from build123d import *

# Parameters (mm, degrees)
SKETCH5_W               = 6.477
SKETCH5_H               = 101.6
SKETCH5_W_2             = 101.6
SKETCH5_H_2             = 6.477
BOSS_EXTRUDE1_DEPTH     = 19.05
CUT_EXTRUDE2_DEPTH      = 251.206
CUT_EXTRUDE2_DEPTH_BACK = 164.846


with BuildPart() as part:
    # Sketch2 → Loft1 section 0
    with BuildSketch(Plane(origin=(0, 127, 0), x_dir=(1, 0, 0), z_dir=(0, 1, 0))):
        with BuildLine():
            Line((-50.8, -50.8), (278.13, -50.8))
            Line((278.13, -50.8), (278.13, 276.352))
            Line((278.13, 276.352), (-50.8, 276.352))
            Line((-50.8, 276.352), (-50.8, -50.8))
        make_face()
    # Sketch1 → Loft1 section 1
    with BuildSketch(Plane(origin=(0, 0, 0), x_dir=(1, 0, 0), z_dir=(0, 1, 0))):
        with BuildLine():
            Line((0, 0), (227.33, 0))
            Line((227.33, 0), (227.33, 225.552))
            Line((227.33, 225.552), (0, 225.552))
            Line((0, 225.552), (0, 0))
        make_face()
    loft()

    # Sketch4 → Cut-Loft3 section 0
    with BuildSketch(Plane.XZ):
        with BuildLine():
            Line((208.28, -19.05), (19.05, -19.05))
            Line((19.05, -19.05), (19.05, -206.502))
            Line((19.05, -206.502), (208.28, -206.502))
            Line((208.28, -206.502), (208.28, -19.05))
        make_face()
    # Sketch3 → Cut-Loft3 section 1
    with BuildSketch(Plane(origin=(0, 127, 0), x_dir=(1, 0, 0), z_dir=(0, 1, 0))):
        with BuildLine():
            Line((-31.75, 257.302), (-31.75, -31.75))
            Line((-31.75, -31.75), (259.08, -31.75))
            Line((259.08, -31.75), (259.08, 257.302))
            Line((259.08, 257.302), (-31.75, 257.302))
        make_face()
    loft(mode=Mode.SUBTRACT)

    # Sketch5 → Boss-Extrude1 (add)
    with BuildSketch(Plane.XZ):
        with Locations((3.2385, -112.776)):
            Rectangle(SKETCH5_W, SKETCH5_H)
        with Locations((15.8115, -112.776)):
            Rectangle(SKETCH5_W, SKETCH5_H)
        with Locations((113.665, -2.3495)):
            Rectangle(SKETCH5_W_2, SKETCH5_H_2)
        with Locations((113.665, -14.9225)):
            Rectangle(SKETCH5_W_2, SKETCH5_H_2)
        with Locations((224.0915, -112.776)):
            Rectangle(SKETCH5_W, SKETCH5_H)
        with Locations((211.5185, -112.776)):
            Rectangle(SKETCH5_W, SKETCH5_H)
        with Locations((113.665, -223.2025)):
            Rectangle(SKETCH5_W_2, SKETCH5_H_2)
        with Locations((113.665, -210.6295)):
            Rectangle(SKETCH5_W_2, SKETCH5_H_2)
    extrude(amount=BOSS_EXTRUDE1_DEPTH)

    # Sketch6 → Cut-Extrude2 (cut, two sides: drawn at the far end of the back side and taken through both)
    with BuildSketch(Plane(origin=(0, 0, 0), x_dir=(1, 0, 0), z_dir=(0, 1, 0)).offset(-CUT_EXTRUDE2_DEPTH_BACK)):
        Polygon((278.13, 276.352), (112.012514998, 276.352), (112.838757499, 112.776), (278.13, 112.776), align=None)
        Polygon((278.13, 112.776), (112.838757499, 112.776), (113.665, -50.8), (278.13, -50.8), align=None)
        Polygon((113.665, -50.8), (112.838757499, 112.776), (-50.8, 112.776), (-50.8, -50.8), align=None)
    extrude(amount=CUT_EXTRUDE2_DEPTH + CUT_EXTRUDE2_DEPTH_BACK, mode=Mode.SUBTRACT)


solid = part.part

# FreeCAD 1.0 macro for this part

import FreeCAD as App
import Part
import Sketcher
from FreeCAD import Vector
Q = App.Units.Quantity

doc = App.newDocument("Part")
body = doc.addObject("PartDesign::Body", "Body")

# Sketch on XZ plane
sketch1 = body.newObject("Sketcher::SketchObject", "Sketch")
sketch1.AttachmentSupport = (doc.getObject("XZ_Plane"), [""])
sketch1.MapMode = "FlatFace"
sketch1.AttachmentOffset = App.Placement(Vector(0, 0, -5 * 25.4), App.Rotation())
sketch1.addGeometry(Part.LineSegment(Vector(-50.8, 50.8, 0), Vector(278.13, 50.8, 0)), False)
sketch1.addGeometry(Part.LineSegment(Vector(278.13, 50.8, 0), Vector(278.13, -276.352, 0)), False)
sketch1.addGeometry(Part.LineSegment(Vector(278.13, -276.352, 0), Vector(-50.8, -276.352, 0)), False)
sketch1.addGeometry(Part.LineSegment(Vector(-50.8, -276.352, 0), Vector(-50.8, 50.8, 0)), False)
sketch1.addConstraint(Sketcher.Constraint("Coincident", 0, 2, 1, 1))
sketch1.addConstraint(Sketcher.Constraint("Coincident", 1, 2, 2, 1))
sketch1.addConstraint(Sketcher.Constraint("Coincident", 2, 2, 3, 1))
sketch1.addConstraint(Sketcher.Constraint("Coincident", 3, 2, 0, 1))
sketch1.addConstraint(Sketcher.Constraint("Horizontal", 0))
sketch1.addConstraint(Sketcher.Constraint("Vertical", 1))
sketch1.addConstraint(Sketcher.Constraint("Horizontal", 2))
sketch1.addConstraint(Sketcher.Constraint("Vertical", 3))
sketch1.addConstraint(Sketcher.Constraint("DistanceY", -1, 1, 0, 2, Q("2 in")))
sketch1.addConstraint(Sketcher.Constraint("DistanceX", 2, 2, -1, 1, Q("2 in")))
sketch1.addConstraint(Sketcher.Constraint("DistanceX", 0, 1, 0, 2, Q("12.95 in")))
sketch1.addConstraint(Sketcher.Constraint("DistanceY", 1, 2, 1, 1, Q("12.88 in")))

# Sketch on XZ plane
sketch2 = body.newObject("Sketcher::SketchObject", "Sketch001")
sketch2.AttachmentSupport = (doc.getObject("XZ_Plane"), [""])
sketch2.MapMode = "FlatFace"
sketch2.addGeometry(Part.LineSegment(Vector(0, 0, 0), Vector(227.33, 0, 0)), False)
sketch2.addGeometry(Part.LineSegment(Vector(227.33, 0, 0), Vector(227.33, -225.552, 0)), False)
sketch2.addGeometry(Part.LineSegment(Vector(227.33, -225.552, 0), Vector(0, -225.552, 0)), False)
sketch2.addGeometry(Part.LineSegment(Vector(0, -225.552, 0), Vector(0, 0, 0)), False)
sketch2.addConstraint(Sketcher.Constraint("Coincident", 0, 2, 1, 1))
sketch2.addConstraint(Sketcher.Constraint("Coincident", 1, 2, 2, 1))
sketch2.addConstraint(Sketcher.Constraint("Coincident", 2, 2, 3, 1))
sketch2.addConstraint(Sketcher.Constraint("Coincident", 3, 2, 0, 1))
sketch2.addConstraint(Sketcher.Constraint("Horizontal", 0))
sketch2.addConstraint(Sketcher.Constraint("Vertical", 1))
sketch2.addConstraint(Sketcher.Constraint("Horizontal", 2))
sketch2.addConstraint(Sketcher.Constraint("Vertical", 3))
sketch2.addConstraint(Sketcher.Constraint("Coincident", 3, 2, -1, 1))
sketch2.addConstraint(Sketcher.Constraint("DistanceX", 0, 1, 0, 2, Q("8.95 in")))
sketch2.addConstraint(Sketcher.Constraint("DistanceY", 1, 2, 1, 1, Q("8.88 in")))

additiveloft = body.newObject("PartDesign::AdditiveLoft", "AdditiveLoft")
additiveloft.Profile = sketch1
additiveloft.Sections = [sketch2]

# Sketch on XZ plane
sketch3 = body.newObject("Sketcher::SketchObject", "Sketch002")
sketch3.AttachmentSupport = (doc.getObject("XZ_Plane"), [""])
sketch3.MapMode = "FlatFace"
sketch3.addGeometry(Part.LineSegment(Vector(208.28, -19.05, 0), Vector(19.05, -19.05, 0)), False)
sketch3.addGeometry(Part.LineSegment(Vector(19.05, -19.05, 0), Vector(19.05, -206.502, 0)), False)
sketch3.addGeometry(Part.LineSegment(Vector(19.05, -206.502, 0), Vector(208.28, -206.502, 0)), False)
sketch3.addGeometry(Part.LineSegment(Vector(208.28, -206.502, 0), Vector(208.28, -19.05, 0)), False)
sketch3.addConstraint(Sketcher.Constraint("Coincident", 0, 2, 1, 1))
sketch3.addConstraint(Sketcher.Constraint("Coincident", 1, 2, 2, 1))
sketch3.addConstraint(Sketcher.Constraint("Coincident", 2, 2, 3, 1))
sketch3.addConstraint(Sketcher.Constraint("Coincident", 3, 2, 0, 1))
sketch3.addConstraint(Sketcher.Constraint("Horizontal", 0))
sketch3.addConstraint(Sketcher.Constraint("Vertical", 1))
sketch3.addConstraint(Sketcher.Constraint("Horizontal", 2))
sketch3.addConstraint(Sketcher.Constraint("Vertical", 3))
sketch3.addConstraint(Sketcher.Constraint("DistanceX", 0, 2, 0, 1, Q("7.45 in")))
sketch3.addConstraint(Sketcher.Constraint("DistanceY", 1, 2, 1, 1, Q("7.38 in")))
sketch3.addConstraint(Sketcher.Constraint("DistanceX", -1, 1, 2, 2, Q("8.2 in")))
sketch3.addConstraint(Sketcher.Constraint("DistanceY", 0, 2, -1, 1, Q("0.75 in")))

# Sketch on XZ plane
sketch4 = body.newObject("Sketcher::SketchObject", "Sketch003")
sketch4.AttachmentSupport = (doc.getObject("XZ_Plane"), [""])
sketch4.MapMode = "FlatFace"
sketch4.AttachmentOffset = App.Placement(Vector(0, 0, -5 * 25.4), App.Rotation())
sketch4.addGeometry(Part.LineSegment(Vector(-31.75, -257.302, 0), Vector(-31.75, 31.75, 0)), False)
sketch4.addGeometry(Part.LineSegment(Vector(-31.75, 31.75, 0), Vector(259.08, 31.75, 0)), False)
sketch4.addGeometry(Part.LineSegment(Vector(259.08, 31.75, 0), Vector(259.08, -257.302, 0)), False)
sketch4.addGeometry(Part.LineSegment(Vector(259.08, -257.302, 0), Vector(-31.75, -257.302, 0)), False)
sketch4.addConstraint(Sketcher.Constraint("Coincident", 0, 2, 1, 1))
sketch4.addConstraint(Sketcher.Constraint("Coincident", 1, 2, 2, 1))
sketch4.addConstraint(Sketcher.Constraint("Coincident", 2, 2, 3, 1))
sketch4.addConstraint(Sketcher.Constraint("Coincident", 3, 2, 0, 1))
sketch4.addConstraint(Sketcher.Constraint("Vertical", 0))
sketch4.addConstraint(Sketcher.Constraint("Horizontal", 1))
sketch4.addConstraint(Sketcher.Constraint("Vertical", 2))
sketch4.addConstraint(Sketcher.Constraint("Horizontal", 3))
sketch4.addConstraint(Sketcher.Constraint("DistanceX", 1, 1, 1, 2, Q("11.45 in")))
sketch4.addConstraint(Sketcher.Constraint("DistanceY", 0, 1, 0, 2, Q("11.38 in")))
sketch4.addConstraint(Sketcher.Constraint("DistanceX", -1, 1, 1, 2, Q("10.2 in")))
sketch4.addConstraint(Sketcher.Constraint("DistanceY", -1, 1, 0, 2, Q("1.25 in")))

subtractiveloft = body.newObject("PartDesign::SubtractiveLoft", "SubtractiveLoft")
subtractiveloft.Profile = sketch3
subtractiveloft.Sections = [sketch4]

# Sketch on XZ plane
sketch5 = body.newObject("Sketcher::SketchObject", "Sketch004")
sketch5.AttachmentSupport = (doc.getObject("XZ_Plane"), [""])
sketch5.MapMode = "FlatFace"
sketch5.addGeometry(Part.LineSegment(Vector(0, -61.976, 0), Vector(0, -163.576, 0)), False)
sketch5.addGeometry(Part.LineSegment(Vector(0, -163.576, 0), Vector(6.477, -163.576, 0)), False)
sketch5.addGeometry(Part.LineSegment(Vector(6.477, -163.576, 0), Vector(6.477, -61.976, 0)), False)
sketch5.addGeometry(Part.LineSegment(Vector(6.477, -61.976, 0), Vector(0, -61.976, 0)), False)
sketch5.addGeometry(Part.LineSegment(Vector(12.573, -61.976, 0), Vector(12.573, -163.576, 0)), False)
sketch5.addGeometry(Part.LineSegment(Vector(12.573, -163.576, 0), Vector(19.05, -163.576, 0)), False)
sketch5.addGeometry(Part.LineSegment(Vector(19.05, -163.576, 0), Vector(19.05, -61.976, 0)), False)
sketch5.addGeometry(Part.LineSegment(Vector(19.05, -61.976, 0), Vector(12.573, -61.976, 0)), False)
sketch5.addGeometry(Part.LineSegment(Vector(62.865, 0.889, 0), Vector(62.865, -5.588, 0)), False)
sketch5.addGeometry(Part.LineSegment(Vector(62.865, -5.588, 0), Vector(164.465, -5.588, 0)), False)
sketch5.addGeometry(Part.LineSegment(Vector(164.465, -5.588, 0), Vector(164.465, 0.889, 0)), False)
sketch5.addGeometry(Part.LineSegment(Vector(164.465, 0.889, 0), Vector(62.865, 0.889, 0)), False)
sketch5.addGeometry(Part.LineSegment(Vector(62.865, -11.684, 0), Vector(62.865, -18.161, 0)), False)
sketch5.addGeometry(Part.LineSegment(Vector(62.865, -18.161, 0), Vector(164.465, -18.161, 0)), False)
sketch5.addGeometry(Part.LineSegment(Vector(164.465, -18.161, 0), Vector(164.465, -11.684, 0)), False)
sketch5.addGeometry(Part.LineSegment(Vector(164.465, -11.684, 0), Vector(62.865, -11.684, 0)), False)
sketch5.addGeometry(Part.LineSegment(Vector(220.853, -61.976, 0), Vector(220.853, -163.576, 0)), False)
sketch5.addGeometry(Part.LineSegment(Vector(220.853, -163.576, 0), Vector(227.33, -163.576, 0)), False)
sketch5.addGeometry(Part.LineSegment(Vector(227.33, -163.576, 0), Vector(227.33, -61.976, 0)), False)
sketch5.addGeometry(Part.LineSegment(Vector(227.33, -61.976, 0), Vector(220.853, -61.976, 0)), False)
sketch5.addGeometry(Part.LineSegment(Vector(208.28, -61.976, 0), Vector(208.28, -163.576, 0)), False)
sketch5.addGeometry(Part.LineSegment(Vector(208.28, -163.576, 0), Vector(214.757, -163.576, 0)), False)
sketch5.addGeometry(Part.LineSegment(Vector(214.757, -163.576, 0), Vector(214.757, -61.976, 0)), False)
sketch5.addGeometry(Part.LineSegment(Vector(214.757, -61.976, 0), Vector(208.28, -61.976, 0)), False)
sketch5.addGeometry(Part.LineSegment(Vector(62.865, -219.964, 0), Vector(62.865, -226.441, 0)), False)
sketch5.addGeometry(Part.LineSegment(Vector(62.865, -226.441, 0), Vector(164.465, -226.441, 0)), False)
sketch5.addGeometry(Part.LineSegment(Vector(164.465, -226.441, 0), Vector(164.465, -219.964, 0)), False)
sketch5.addGeometry(Part.LineSegment(Vector(164.465, -219.964, 0), Vector(62.865, -219.964, 0)), False)
sketch5.addGeometry(Part.LineSegment(Vector(62.865, -207.391, 0), Vector(62.865, -213.868, 0)), False)
sketch5.addGeometry(Part.LineSegment(Vector(62.865, -213.868, 0), Vector(164.465, -213.868, 0)), False)
sketch5.addGeometry(Part.LineSegment(Vector(164.465, -213.868, 0), Vector(164.465, -207.391, 0)), False)
sketch5.addGeometry(Part.LineSegment(Vector(164.465, -207.391, 0), Vector(62.865, -207.391, 0)), False)
sketch5.addConstraint(Sketcher.Constraint("Coincident", 0, 2, 1, 1))
sketch5.addConstraint(Sketcher.Constraint("Coincident", 1, 2, 2, 1))
sketch5.addConstraint(Sketcher.Constraint("Coincident", 2, 2, 3, 1))
sketch5.addConstraint(Sketcher.Constraint("Coincident", 3, 2, 0, 1))
sketch5.addConstraint(Sketcher.Constraint("Coincident", 4, 2, 5, 1))
sketch5.addConstraint(Sketcher.Constraint("Coincident", 5, 2, 6, 1))
sketch5.addConstraint(Sketcher.Constraint("Coincident", 6, 2, 7, 1))
sketch5.addConstraint(Sketcher.Constraint("Coincident", 7, 2, 4, 1))
sketch5.addConstraint(Sketcher.Constraint("Coincident", 8, 2, 9, 1))
sketch5.addConstraint(Sketcher.Constraint("Coincident", 9, 2, 10, 1))
sketch5.addConstraint(Sketcher.Constraint("Coincident", 10, 2, 11, 1))
sketch5.addConstraint(Sketcher.Constraint("Coincident", 11, 2, 8, 1))
sketch5.addConstraint(Sketcher.Constraint("Coincident", 12, 2, 13, 1))
sketch5.addConstraint(Sketcher.Constraint("Coincident", 13, 2, 14, 1))
sketch5.addConstraint(Sketcher.Constraint("Coincident", 14, 2, 15, 1))
sketch5.addConstraint(Sketcher.Constraint("Coincident", 15, 2, 12, 1))
sketch5.addConstraint(Sketcher.Constraint("Coincident", 16, 2, 17, 1))
sketch5.addConstraint(Sketcher.Constraint("Coincident", 17, 2, 18, 1))
sketch5.addConstraint(Sketcher.Constraint("Coincident", 18, 2, 19, 1))
sketch5.addConstraint(Sketcher.Constraint("Coincident", 19, 2, 16, 1))
sketch5.addConstraint(Sketcher.Constraint("Coincident", 20, 2, 21, 1))
sketch5.addConstraint(Sketcher.Constraint("Coincident", 21, 2, 22, 1))
sketch5.addConstraint(Sketcher.Constraint("Coincident", 22, 2, 23, 1))
sketch5.addConstraint(Sketcher.Constraint("Coincident", 23, 2, 20, 1))
sketch5.addConstraint(Sketcher.Constraint("Coincident", 24, 2, 25, 1))
sketch5.addConstraint(Sketcher.Constraint("Coincident", 25, 2, 26, 1))
sketch5.addConstraint(Sketcher.Constraint("Coincident", 26, 2, 27, 1))
sketch5.addConstraint(Sketcher.Constraint("Coincident", 27, 2, 24, 1))
sketch5.addConstraint(Sketcher.Constraint("Coincident", 28, 2, 29, 1))
sketch5.addConstraint(Sketcher.Constraint("Coincident", 29, 2, 30, 1))
sketch5.addConstraint(Sketcher.Constraint("Coincident", 30, 2, 31, 1))
sketch5.addConstraint(Sketcher.Constraint("Coincident", 31, 2, 28, 1))
sketch5.addConstraint(Sketcher.Constraint("Vertical", 0))
sketch5.addConstraint(Sketcher.Constraint("Horizontal", 1))
sketch5.addConstraint(Sketcher.Constraint("Vertical", 2))
sketch5.addConstraint(Sketcher.Constraint("Horizontal", 3))
sketch5.addConstraint(Sketcher.Constraint("Vertical", 4))
sketch5.addConstraint(Sketcher.Constraint("Horizontal", 5))
sketch5.addConstraint(Sketcher.Constraint("Vertical", 6))
sketch5.addConstraint(Sketcher.Constraint("Horizontal", 7))
sketch5.addConstraint(Sketcher.Constraint("Vertical", 8))
sketch5.addConstraint(Sketcher.Constraint("Horizontal", 9))
sketch5.addConstraint(Sketcher.Constraint("Vertical", 10))
sketch5.addConstraint(Sketcher.Constraint("Horizontal", 11))
sketch5.addConstraint(Sketcher.Constraint("Vertical", 12))
sketch5.addConstraint(Sketcher.Constraint("Horizontal", 13))
sketch5.addConstraint(Sketcher.Constraint("Vertical", 14))
sketch5.addConstraint(Sketcher.Constraint("Horizontal", 15))
sketch5.addConstraint(Sketcher.Constraint("Vertical", 16))
sketch5.addConstraint(Sketcher.Constraint("Horizontal", 17))
sketch5.addConstraint(Sketcher.Constraint("Vertical", 18))
sketch5.addConstraint(Sketcher.Constraint("Horizontal", 19))
sketch5.addConstraint(Sketcher.Constraint("Vertical", 20))
sketch5.addConstraint(Sketcher.Constraint("Horizontal", 21))
sketch5.addConstraint(Sketcher.Constraint("Vertical", 22))
sketch5.addConstraint(Sketcher.Constraint("Horizontal", 23))
sketch5.addConstraint(Sketcher.Constraint("Vertical", 24))
sketch5.addConstraint(Sketcher.Constraint("Horizontal", 25))
sketch5.addConstraint(Sketcher.Constraint("Vertical", 26))
sketch5.addConstraint(Sketcher.Constraint("Horizontal", 27))
sketch5.addConstraint(Sketcher.Constraint("Vertical", 28))
sketch5.addConstraint(Sketcher.Constraint("Horizontal", 29))
sketch5.addConstraint(Sketcher.Constraint("Vertical", 30))
sketch5.addConstraint(Sketcher.Constraint("Horizontal", 31))
sketch5.addConstraint(Sketcher.Constraint("PointOnObject", 0, 2, -2))
sketch5.addConstraint(Sketcher.Constraint("Horizontal", 1, 2, 4, 2))
sketch5.addConstraint(Sketcher.Constraint("Horizontal", 3, 2, 6, 2))
sketch5.addConstraint(Sketcher.Constraint("Horizontal", 5, 2, 16, 2))
sketch5.addConstraint(Sketcher.Constraint("Horizontal", 7, 2, 18, 2))
sketch5.addConstraint(Sketcher.Constraint("Horizontal", 17, 2, 20, 2))
sketch5.addConstraint(Sketcher.Constraint("Horizontal", 19, 2, 22, 2))
sketch5.addConstraint(Sketcher.Constraint("Vertical", 11, 2, 12, 2))
sketch5.addConstraint(Sketcher.Constraint("Vertical", 10, 2, 13, 2))
sketch5.addConstraint(Sketcher.Constraint("Vertical", 15, 2, 24, 2))
sketch5.addConstraint(Sketcher.Constraint("Vertical", 14, 2, 25, 2))
sketch5.addConstraint(Sketcher.Constraint("Vertical", 27, 2, 28, 2))
sketch5.addConstraint(Sketcher.Constraint("Vertical", 26, 2, 29, 2))
sketch5.addConstraint(Sketcher.Constraint("Equal", 3, 5))
sketch5.addConstraint(Sketcher.Constraint("Equal", 7, 17))
sketch5.addConstraint(Sketcher.Constraint("Equal", 19, 21))
sketch5.addConstraint(Sketcher.Constraint("Equal", 31, 0))
sketch5.addConstraint(Sketcher.Constraint("Equal", 23, 8))
sketch5.addConstraint(Sketcher.Constraint("Equal", 10, 12))
sketch5.addConstraint(Sketcher.Constraint("Equal", 14, 24))
sketch5.addConstraint(Sketcher.Constraint("Equal", 26, 28))
sketch5.addConstraint(Sketcher.Constraint("DistanceX", 9, 1, 9, 2, Q("4 in")))
sketch5.addConstraint(Sketcher.Constraint("DistanceX", -1, 1, 20, 2, Q("8.2 in")))
sketch5.addConstraint(Sketcher.Constraint("DistanceX", 1, 1, 1, 2, Q("0.255 in")))
sketch5.addConstraint(Sketcher.Constraint("DistanceY", 0, 2, -1, 1, Q("6.44 in")))
sketch5.addConstraint(Sketcher.Constraint("DistanceX", -1, 1, 5, 2, Q("0.75 in")))
sketch5.addConstraint(Sketcher.Constraint("DistanceY", 8, 2, -1, 1, Q("0.22 in")))
sketch5.addConstraint(Sketcher.Constraint("DistanceY", 14, 2, -1, 1, Q("0.46 in")))
sketch5.addConstraint(Sketcher.Constraint("DistanceX", -1, 1, 17, 2, Q("8.95 in")))
sketch5.addConstraint(Sketcher.Constraint("DistanceY", 26, 2, -1, 1, Q("8.66 in")))
sketch5.addConstraint(Sketcher.Constraint("DistanceY", 28, 2, -1, 1, Q("8.42 in")))
sketch5.addConstraint(Sketcher.Constraint("DistanceX", 7, 2, 8, 2, Q("1.98 in")))
pad1 = body.newObject("PartDesign::Pad", "Pad")
pad1.Profile = sketch5
pad1.Length = Q("0.75 in")

# Sketch on XZ plane
sketch6 = body.newObject("Sketcher::SketchObject", "Sketch005")
sketch6.AttachmentSupport = (doc.getObject("XZ_Plane"), [""])
sketch6.MapMode = "FlatFace"
sketch6.addGeometry(Part.LineSegment(Vector(278.13, -276.352, 0), Vector(112.012515, -276.352, 0)), False)
sketch6.addGeometry(Part.LineSegment(Vector(112.012515, -276.352, 0), Vector(112.838757, -112.776, 0)), False)
sketch6.addGeometry(Part.LineSegment(Vector(112.838757, -112.776, 0), Vector(-50.8, -112.776, 0)), False)
sketch6.addGeometry(Part.LineSegment(Vector(-50.8, -112.776, 0), Vector(-50.8, 50.8, 0)), False)
sketch6.addGeometry(Part.LineSegment(Vector(-50.8, 50.8, 0), Vector(278.13, 50.8, 0)), False)
sketch6.addGeometry(Part.LineSegment(Vector(278.13, 50.8, 0), Vector(278.13, -276.352, 0)), False)
sketch6.addConstraint(Sketcher.Constraint("Coincident", 0, 2, 1, 1))
sketch6.addConstraint(Sketcher.Constraint("Coincident", 1, 2, 2, 1))
sketch6.addConstraint(Sketcher.Constraint("Coincident", 2, 2, 3, 1))
sketch6.addConstraint(Sketcher.Constraint("Coincident", 3, 2, 4, 1))
sketch6.addConstraint(Sketcher.Constraint("Coincident", 4, 2, 5, 1))
sketch6.addConstraint(Sketcher.Constraint("Coincident", 5, 2, 0, 1))
sketch6.addConstraint(Sketcher.Constraint("Horizontal", 0))
sketch6.addConstraint(Sketcher.Constraint("Horizontal", 2))
sketch6.addConstraint(Sketcher.Constraint("Vertical", 3))
sketch6.addConstraint(Sketcher.Constraint("Horizontal", 4))
sketch6.addConstraint(Sketcher.Constraint("Vertical", 5))
sketch6.addConstraint(Sketcher.Constraint("DistanceX", 2, 2, -1, 1, Q("2 in")))
sketch6.addConstraint(Sketcher.Constraint("DistanceY", -1, 1, 3, 2, Q("2 in")))
sketch6.addConstraint(Sketcher.Constraint("DistanceX", 4, 1, 4, 2, Q("12.95 in")))
sketch6.addConstraint(Sketcher.Constraint("DistanceY", 3, 1, 3, 2, Q("6.44 in")))
sketch6.addConstraint(Sketcher.Constraint("DistanceY", 5, 2, 5, 1, Q("12.88 in")))
sketch6.addConstraint(Sketcher.Constraint("DistanceX", 0, 2, 0, 1, 166.117485))
sketch6.addConstraint(Sketcher.Constraint("DistanceX", 2, 2, 2, 1, 163.638757))
pocket1 = body.newObject("PartDesign::Pocket", "Pocket")
pocket1.Profile = sketch6
pocket1.Type = "ThroughAll"
pocket1.Midplane = True

doc.recompute()
